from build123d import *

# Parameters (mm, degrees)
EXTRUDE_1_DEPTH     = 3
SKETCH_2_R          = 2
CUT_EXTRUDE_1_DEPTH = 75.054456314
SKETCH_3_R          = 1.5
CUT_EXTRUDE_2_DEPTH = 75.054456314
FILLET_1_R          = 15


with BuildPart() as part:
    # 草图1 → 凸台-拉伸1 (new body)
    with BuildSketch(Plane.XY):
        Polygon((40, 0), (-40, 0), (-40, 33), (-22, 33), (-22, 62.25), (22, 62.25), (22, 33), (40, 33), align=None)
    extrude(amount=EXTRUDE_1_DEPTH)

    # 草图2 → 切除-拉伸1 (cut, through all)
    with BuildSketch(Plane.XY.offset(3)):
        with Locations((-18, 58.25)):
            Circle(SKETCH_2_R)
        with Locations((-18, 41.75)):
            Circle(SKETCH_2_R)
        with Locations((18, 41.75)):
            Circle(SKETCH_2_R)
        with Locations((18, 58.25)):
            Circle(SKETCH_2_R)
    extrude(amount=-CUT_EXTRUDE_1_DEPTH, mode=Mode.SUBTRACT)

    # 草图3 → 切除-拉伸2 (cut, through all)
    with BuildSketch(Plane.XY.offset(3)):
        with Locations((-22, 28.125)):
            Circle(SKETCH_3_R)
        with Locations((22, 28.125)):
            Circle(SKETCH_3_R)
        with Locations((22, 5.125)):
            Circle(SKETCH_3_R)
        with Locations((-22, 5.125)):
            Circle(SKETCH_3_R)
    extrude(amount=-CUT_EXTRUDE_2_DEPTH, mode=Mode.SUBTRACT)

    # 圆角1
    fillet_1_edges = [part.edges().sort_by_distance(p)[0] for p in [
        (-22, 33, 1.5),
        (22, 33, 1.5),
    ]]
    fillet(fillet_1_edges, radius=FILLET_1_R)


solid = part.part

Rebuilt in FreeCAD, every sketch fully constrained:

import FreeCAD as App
import Part
import Sketcher

V = App.Vector
Q = App.Units.Quantity


def edges_at(feature, points):
    """Names of the edges that pass closest to the given points."""
    edges = feature.Shape.Edges
    near = lambda p: min(range(len(edges)), key=lambda i: edges[i].distToShape(Part.Vertex(*p))[0])
    return sorted({f"Edge{near(p) + 1}" for p in points})

doc = App.newDocument("Part")
body = doc.addObject("PartDesign::Body", "Body")

sketch1 = body.newObject("Sketcher::SketchObject", "Sketch")
sketch1.AttachmentSupport = (doc.getObject("XY_Plane"), [""])
sketch1.MapMode = "FlatFace"
sketch1.addGeometry(Part.LineSegment(V(-40, 0, 0), V(40, 0, 0)), False)
sketch1.addGeometry(Part.LineSegment(V(40, 0, 0), V(40, 33, 0)), False)
sketch1.addGeometry(Part.LineSegment(V(40, 33, 0), V(22, 33, 0)), False)
sketch1.addGeometry(Part.LineSegment(V(22, 33, 0), V(22, 62, 0)), False)
sketch1.addGeometry(Part.LineSegment(V(22, 62, 0), V(-22, 62, 0)), False)
sketch1.addGeometry(Part.LineSegment(V(-22, 62, 0), V(-22, 33, 0)), False)
sketch1.addGeometry(Part.LineSegment(V(-22, 33, 0), V(-40, 33, 0)), False)
sketch1.addGeometry(Part.LineSegment(V(-40, 33, 0), V(-40, 0, 0)), False)
sketch1.addConstraint(Sketcher.Constraint("Coincident", 0, 2, 1, 1))
sketch1.addConstraint(Sketcher.Constraint("Coincident", 1, 2, 2, 1))
sketch1.addConstraint(Sketcher.Constraint("Coincident", 2, 2, 3, 1))
sketch1.addConstraint(Sketcher.Constraint("Coincident", 3, 2, 4, 1))
sketch1.addConstraint(Sketcher.Constraint("Coincident", 4, 2, 5, 1))
sketch1.addConstraint(Sketcher.Constraint("Coincident", 5, 2, 6, 1))
sketch1.addConstraint(Sketcher.Constraint("Coincident", 6, 2, 7, 1))
sketch1.addConstraint(Sketcher.Constraint("Coincident", 7, 2, 0, 1))
sketch1.addConstraint(Sketcher.Constraint("Horizontal", 0))
sketch1.addConstraint(Sketcher.Constraint("Vertical", 1))
sketch1.addConstraint(Sketcher.Constraint("Horizontal", 2))
sketch1.addConstraint(Sketcher.Constraint("Vertical", 3))
sketch1.addConstraint(Sketcher.Constraint("Horizontal", 4))
sketch1.addConstraint(Sketcher.Constraint("Vertical", 5))
sketch1.addConstraint(Sketcher.Constraint("Horizontal", 6))
sketch1.addConstraint(Sketcher.Constraint("Vertical", 7))
sketch1.addConstraint(Sketcher.Constraint("Symmetric", 0, 2, 7, 2, -1, 1))
sketch1.addConstraint(Sketcher.Constraint("Symmetric", 2, 2, 5, 2, -2))
sketch1.addConstraint(Sketcher.Constraint("DistanceX", 0, 1, 0, 2, Q("80 mm")))
sketch1.addConstraint(Sketcher.Constraint("DistanceX", 2, 2, 2, 1, Q("18 mm")))
sketch1.addConstraint(Sketcher.Constraint("DistanceY", 1, 1, 1, 2, Q("33 mm")))
sketch1.addConstraint(Sketcher.Constraint("DistanceY", 3, 1, 3, 2, Q("29.25 mm")))
pad1 = body.newObject("PartDesign::Pad", "Pad")
pad1.Profile = sketch1
pad1.Length = 3

sketch2 = body.newObject("Sketcher::SketchObject", "Sketch001")
sketch2.AttachmentSupport = (doc.getObject("XY_Plane"), [""])
sketch2.MapMode = "FlatFace"
sketch2.AttachmentOffset = App.Placement(V(0, 0, 3), App.Rotation())
sketch2.addGeometry(Part.Circle(V(-18, 58.2, 0), V(0, 0, 1), 2), False)
sketch2.addGeometry(Part.Circle(V(-18, 41.8, 0), V(0, 0, 1), 2), False)
sketch2.addGeometry(Part.Circle(V(18, 41.8, 0), V(0, 0, 1), 2), False)
sketch2.addGeometry(Part.Circle(V(18, 58.2, 0), V(0, 0, 1), 2), False)
sketch2.addConstraint(Sketcher.Constraint("Equal", 0, 1))
sketch2.addConstraint(Sketcher.Constraint("Equal", 1, 2))
sketch2.addConstraint(Sketcher.Constraint("Equal", 2, 3))
sketch2.addConstraint(Sketcher.Constraint("Symmetric", 1, 3, 2, 3, -2))
sketch2.addConstraint(Sketcher.Constraint("Symmetric", 0, 3, 3, 3, -2))
sketch2.addConstraint(Sketcher.Constraint("Vertical", 0, 3, 1, 3))
sketch2.addConstraint(Sketcher.Constraint("Diameter", 0, Q("4 mm")))
sketch2.addConstraint(Sketcher.Constraint("DistanceX", 0, 3, -1, 1, Q("18 mm")))
sketch2.addConstraint(Sketcher.Constraint("DistanceY", 1, 3, 0, 3, Q("16.5 mm")))
sketch2.addConstraint(Sketcher.Constraint("DistanceY", -1, 1, 0, 3, Q("58.25 mm")))
pocket1 = body.newObject("PartDesign::Pocket", "Pocket")
pocket1.Profile = sketch2
pocket1.Type = "ThroughAll"

sketch3 = body.newObject("Sketcher::SketchObject", "Sketch002")
sketch3.AttachmentSupport = (doc.getObject("XY_Plane"), [""])
sketch3.MapMode = "FlatFace"
sketch3.AttachmentOffset = App.Placement(V(0, 0, 3), App.Rotation())
sketch3.addGeometry(Part.Circle(V(-22, 28.1, 0), V(0, 0, 1), 1.5), False)
sketch3.addGeometry(Part.Circle(V(22, 28.1, 0), V(0, 0, 1), 1.5), False)
sketch3.addGeometry(Part.Circle(V(22, 5.1, 0), V(0, 0, 1), 1.5), False)
sketch3.addGeometry(Part.Circle(V(-22, 5.1, 0), V(0, 0, 1), 1.5), False)
sketch3.addConstraint(Sketcher.Constraint("Equal", 0, 1))
sketch3.addConstraint(Sketcher.Constraint("Equal", 1, 2))
sketch3.addConstraint(Sketcher.Constraint("Equal", 2, 3))
sketch3.addConstraint(Sketcher.Constraint("Symmetric", 0, 3, 1, 3, -2))
sketch3.addConstraint(Sketcher.Constraint("Symmetric", 2, 3, 3, 3, -2))
sketch3.addConstraint(Sketcher.Constraint("Vertical", 1, 3, 2, 3))
sketch3.addConstraint(Sketcher.Constraint("Diameter", 0, Q("3 mm")))
sketch3.addConstraint(Sketcher.Constraint("DistanceX", 0, 3, -1, 1, Q("22 mm")))
sketch3.addConstraint(Sketcher.Constraint("DistanceY", 2, 3, 1, 3, Q("23 mm")))
sketch3.addConstraint(Sketcher.Constraint("DistanceY", -1, 1, 0, 3, Q("28.125 mm")))
pocket2 = body.newObject("PartDesign::Pocket", "Pocket001")
pocket2.Profile = sketch3
pocket2.Type = "ThroughAll"
doc.recompute()

fillet = body.newObject("PartDesign::Fillet", "Fillet")
fillet.Base = (pocket2, edges_at(pocket2, [(-22, 33, 1.5), (22, 33, 1.5)]))
fillet.Radius = 15

doc.recompute()
